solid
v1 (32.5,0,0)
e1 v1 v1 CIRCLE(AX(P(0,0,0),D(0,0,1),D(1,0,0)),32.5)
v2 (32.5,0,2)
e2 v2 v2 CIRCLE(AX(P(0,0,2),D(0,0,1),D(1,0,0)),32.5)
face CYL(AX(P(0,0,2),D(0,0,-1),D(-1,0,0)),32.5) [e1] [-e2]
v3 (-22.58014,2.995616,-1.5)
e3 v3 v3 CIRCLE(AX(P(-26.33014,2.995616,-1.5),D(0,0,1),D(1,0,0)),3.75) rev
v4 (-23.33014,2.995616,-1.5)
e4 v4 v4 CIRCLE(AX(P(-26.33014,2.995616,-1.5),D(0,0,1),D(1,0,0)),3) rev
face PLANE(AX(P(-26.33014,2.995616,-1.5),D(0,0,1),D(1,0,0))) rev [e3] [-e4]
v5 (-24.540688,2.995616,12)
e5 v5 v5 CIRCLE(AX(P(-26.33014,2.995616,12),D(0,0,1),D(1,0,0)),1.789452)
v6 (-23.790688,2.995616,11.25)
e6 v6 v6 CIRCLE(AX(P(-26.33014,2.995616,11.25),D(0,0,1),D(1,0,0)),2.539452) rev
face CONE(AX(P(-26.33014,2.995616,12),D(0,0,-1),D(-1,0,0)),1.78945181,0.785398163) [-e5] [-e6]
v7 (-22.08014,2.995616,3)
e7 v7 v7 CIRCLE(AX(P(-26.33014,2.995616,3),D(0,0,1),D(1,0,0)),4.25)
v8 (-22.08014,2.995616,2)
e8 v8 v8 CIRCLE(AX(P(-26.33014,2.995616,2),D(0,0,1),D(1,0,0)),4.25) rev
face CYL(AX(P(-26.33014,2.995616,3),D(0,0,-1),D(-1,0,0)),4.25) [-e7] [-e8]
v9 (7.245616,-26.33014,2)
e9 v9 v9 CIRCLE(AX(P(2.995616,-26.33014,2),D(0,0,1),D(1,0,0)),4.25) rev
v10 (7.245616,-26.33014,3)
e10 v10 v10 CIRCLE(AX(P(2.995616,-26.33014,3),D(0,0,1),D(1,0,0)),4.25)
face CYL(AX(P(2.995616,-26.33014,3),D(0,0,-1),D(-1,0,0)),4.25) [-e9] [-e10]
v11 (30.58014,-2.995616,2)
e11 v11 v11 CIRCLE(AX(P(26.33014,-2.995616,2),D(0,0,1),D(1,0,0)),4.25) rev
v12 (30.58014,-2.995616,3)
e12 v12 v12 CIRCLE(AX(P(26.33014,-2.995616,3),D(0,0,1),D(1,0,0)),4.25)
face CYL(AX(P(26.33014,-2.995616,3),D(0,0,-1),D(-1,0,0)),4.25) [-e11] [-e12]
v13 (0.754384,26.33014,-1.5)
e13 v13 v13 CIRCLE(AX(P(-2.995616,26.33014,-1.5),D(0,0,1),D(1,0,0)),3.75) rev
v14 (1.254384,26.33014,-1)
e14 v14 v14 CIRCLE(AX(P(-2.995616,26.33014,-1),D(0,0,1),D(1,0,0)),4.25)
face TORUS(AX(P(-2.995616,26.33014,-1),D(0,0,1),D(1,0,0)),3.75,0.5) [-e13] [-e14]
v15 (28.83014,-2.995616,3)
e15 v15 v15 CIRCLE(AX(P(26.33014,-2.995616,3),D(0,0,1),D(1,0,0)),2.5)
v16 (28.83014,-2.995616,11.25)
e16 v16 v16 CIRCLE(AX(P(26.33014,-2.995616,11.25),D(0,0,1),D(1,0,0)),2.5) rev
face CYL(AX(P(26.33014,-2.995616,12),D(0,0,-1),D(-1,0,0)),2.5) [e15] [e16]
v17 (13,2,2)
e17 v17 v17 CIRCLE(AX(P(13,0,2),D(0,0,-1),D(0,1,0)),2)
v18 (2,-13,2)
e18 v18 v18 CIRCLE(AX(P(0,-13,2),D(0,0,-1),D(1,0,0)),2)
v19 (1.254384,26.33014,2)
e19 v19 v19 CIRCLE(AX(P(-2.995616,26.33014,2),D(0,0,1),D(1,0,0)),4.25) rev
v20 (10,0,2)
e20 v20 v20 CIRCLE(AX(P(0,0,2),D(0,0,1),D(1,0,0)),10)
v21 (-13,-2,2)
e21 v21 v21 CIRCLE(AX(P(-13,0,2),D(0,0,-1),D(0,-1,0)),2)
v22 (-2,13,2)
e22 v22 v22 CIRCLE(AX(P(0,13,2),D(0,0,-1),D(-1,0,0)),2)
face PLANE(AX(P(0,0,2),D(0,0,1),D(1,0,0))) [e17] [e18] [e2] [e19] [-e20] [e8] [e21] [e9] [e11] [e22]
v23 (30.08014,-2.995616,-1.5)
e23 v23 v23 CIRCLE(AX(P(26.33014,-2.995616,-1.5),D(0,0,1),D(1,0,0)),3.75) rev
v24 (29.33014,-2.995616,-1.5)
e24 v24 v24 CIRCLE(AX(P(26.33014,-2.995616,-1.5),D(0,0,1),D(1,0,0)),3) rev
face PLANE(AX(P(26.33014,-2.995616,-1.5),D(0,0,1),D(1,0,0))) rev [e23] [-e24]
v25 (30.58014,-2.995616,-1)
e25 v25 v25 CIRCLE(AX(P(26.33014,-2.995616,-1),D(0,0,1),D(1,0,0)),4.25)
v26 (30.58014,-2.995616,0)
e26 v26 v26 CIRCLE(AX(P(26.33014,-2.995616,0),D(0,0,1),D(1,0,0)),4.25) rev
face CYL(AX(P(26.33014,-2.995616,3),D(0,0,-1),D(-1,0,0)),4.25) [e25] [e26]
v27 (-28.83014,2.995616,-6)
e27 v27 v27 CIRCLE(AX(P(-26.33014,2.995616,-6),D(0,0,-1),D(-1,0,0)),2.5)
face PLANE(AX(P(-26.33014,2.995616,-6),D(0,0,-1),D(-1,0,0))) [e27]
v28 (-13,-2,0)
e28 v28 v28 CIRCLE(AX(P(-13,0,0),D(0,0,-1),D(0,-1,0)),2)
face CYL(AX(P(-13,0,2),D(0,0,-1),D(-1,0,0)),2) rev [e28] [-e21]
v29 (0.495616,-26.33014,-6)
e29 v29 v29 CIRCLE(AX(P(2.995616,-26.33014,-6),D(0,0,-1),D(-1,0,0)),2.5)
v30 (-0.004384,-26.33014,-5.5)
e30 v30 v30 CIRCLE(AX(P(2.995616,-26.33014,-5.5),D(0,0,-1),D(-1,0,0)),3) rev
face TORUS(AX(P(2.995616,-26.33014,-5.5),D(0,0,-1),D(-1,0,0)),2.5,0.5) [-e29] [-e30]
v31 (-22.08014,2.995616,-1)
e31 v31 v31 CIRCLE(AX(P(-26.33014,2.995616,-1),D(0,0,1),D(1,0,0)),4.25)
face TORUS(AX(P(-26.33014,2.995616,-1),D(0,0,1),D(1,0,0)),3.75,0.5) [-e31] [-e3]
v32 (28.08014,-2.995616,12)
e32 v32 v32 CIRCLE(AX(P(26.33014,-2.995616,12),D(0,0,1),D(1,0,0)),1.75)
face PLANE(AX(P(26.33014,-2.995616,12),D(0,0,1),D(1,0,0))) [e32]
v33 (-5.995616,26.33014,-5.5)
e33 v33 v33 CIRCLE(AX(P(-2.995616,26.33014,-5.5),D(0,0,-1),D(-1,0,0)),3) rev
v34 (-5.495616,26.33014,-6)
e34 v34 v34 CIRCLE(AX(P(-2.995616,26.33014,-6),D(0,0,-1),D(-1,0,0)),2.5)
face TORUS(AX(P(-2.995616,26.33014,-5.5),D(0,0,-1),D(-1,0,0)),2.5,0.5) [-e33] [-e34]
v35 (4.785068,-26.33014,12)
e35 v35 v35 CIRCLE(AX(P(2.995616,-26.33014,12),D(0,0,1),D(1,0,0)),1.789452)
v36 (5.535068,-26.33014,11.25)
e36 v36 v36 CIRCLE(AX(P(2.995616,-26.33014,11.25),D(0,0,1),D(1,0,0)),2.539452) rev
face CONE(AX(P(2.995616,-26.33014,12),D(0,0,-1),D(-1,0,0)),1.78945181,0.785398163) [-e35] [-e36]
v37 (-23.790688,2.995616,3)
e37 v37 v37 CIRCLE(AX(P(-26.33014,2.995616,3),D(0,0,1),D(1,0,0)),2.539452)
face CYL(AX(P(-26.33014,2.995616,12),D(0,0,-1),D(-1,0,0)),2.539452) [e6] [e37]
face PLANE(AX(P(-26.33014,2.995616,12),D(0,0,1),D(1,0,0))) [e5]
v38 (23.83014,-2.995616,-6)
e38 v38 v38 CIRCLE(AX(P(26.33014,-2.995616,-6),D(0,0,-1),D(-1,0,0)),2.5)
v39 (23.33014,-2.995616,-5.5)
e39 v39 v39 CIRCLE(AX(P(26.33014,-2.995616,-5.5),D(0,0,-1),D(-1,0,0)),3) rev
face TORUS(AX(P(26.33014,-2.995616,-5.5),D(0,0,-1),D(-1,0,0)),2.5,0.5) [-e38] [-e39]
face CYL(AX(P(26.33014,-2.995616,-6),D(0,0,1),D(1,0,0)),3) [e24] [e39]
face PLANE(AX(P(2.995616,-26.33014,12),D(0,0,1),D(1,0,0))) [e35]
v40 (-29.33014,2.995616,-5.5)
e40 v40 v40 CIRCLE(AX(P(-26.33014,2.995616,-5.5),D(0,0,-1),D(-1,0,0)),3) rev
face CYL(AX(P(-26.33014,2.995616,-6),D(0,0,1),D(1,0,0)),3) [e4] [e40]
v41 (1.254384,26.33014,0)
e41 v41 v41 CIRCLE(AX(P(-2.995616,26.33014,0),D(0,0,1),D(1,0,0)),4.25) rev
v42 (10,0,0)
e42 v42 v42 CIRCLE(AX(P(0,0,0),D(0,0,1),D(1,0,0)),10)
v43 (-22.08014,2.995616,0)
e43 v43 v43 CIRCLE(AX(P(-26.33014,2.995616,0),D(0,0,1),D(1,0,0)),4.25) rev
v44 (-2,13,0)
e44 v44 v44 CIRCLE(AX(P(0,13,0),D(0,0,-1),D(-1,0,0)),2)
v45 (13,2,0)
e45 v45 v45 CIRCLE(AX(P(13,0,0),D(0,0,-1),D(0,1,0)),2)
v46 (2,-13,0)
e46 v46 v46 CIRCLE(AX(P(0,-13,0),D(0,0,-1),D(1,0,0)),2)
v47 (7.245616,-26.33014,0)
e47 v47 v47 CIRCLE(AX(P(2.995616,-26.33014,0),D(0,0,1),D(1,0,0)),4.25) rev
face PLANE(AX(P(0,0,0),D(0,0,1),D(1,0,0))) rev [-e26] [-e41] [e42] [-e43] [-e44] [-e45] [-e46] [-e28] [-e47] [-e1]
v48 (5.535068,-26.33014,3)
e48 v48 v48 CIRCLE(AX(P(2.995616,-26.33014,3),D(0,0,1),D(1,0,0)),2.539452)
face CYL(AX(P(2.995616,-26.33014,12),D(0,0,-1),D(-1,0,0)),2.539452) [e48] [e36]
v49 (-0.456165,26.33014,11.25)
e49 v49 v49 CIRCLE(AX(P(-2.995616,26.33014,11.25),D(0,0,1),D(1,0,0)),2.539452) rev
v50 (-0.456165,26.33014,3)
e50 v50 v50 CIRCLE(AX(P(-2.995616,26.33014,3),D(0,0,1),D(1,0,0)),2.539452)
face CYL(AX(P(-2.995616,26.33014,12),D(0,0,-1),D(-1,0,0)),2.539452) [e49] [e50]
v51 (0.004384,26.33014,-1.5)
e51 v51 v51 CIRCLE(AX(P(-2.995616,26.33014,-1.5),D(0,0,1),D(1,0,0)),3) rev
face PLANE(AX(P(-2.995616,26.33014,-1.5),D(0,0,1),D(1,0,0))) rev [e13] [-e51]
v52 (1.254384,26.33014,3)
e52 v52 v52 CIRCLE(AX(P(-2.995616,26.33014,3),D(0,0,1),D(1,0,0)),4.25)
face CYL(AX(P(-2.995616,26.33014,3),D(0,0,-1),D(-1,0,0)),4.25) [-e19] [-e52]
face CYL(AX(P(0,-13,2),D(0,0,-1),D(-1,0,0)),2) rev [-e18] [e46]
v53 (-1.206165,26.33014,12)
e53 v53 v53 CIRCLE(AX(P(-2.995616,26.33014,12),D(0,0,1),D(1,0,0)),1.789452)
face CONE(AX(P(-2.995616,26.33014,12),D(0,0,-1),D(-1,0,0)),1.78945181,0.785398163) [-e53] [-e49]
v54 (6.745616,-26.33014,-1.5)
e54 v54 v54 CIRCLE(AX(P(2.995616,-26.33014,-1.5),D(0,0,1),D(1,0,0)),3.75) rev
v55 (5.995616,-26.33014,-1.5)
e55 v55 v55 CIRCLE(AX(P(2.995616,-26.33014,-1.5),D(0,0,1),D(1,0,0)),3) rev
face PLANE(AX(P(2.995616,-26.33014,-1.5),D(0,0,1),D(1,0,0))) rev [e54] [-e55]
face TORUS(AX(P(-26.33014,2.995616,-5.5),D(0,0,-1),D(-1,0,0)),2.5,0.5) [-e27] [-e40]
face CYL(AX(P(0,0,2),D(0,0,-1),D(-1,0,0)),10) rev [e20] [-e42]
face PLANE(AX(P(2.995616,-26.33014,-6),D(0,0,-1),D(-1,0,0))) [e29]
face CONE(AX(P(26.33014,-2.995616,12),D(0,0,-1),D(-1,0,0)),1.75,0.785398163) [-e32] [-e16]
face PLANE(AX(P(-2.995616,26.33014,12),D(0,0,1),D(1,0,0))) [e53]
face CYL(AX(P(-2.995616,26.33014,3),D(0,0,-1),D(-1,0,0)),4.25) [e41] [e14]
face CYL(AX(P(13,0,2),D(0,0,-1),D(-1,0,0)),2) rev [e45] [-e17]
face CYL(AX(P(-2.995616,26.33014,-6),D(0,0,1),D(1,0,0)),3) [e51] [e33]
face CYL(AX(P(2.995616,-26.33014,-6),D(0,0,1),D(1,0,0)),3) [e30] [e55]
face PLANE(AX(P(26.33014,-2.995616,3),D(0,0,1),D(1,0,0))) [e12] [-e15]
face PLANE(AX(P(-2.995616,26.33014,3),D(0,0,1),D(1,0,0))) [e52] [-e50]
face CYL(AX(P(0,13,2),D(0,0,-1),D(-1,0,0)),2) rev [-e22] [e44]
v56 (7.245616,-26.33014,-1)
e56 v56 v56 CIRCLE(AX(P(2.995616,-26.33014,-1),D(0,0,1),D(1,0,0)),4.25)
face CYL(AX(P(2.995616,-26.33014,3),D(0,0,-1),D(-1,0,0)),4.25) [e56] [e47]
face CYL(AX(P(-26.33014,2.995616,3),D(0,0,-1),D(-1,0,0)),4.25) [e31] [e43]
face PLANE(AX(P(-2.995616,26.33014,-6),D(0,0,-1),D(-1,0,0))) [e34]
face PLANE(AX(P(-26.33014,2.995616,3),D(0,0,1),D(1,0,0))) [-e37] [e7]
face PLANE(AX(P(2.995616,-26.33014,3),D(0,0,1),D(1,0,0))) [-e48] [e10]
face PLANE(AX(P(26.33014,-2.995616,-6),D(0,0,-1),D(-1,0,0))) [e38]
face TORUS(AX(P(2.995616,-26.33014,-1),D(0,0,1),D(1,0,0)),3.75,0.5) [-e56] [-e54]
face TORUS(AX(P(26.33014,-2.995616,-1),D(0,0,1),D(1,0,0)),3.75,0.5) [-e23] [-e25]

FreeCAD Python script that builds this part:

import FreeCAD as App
import Part
import Sketcher


def edges_at(feature, points):
    """Names of the edges that pass closest to the given points."""
    edges = feature.Shape.Edges
    near = lambda p: min(range(len(edges)), key=lambda i: edges[i].distToShape(Part.Vertex(*p))[0])
    return sorted({f"Edge{near(p) + 1}" for p in points})

doc = App.newDocument("Part")
body = doc.addObject("PartDesign::Body", "Body")

sketch1 = doc.addObject("Sketcher::SketchObject", "Sketch")
body.addObject(sketch1)
sketch1.AttachmentSupport = (doc.XY_Plane, [""])
sketch1.MapMode = "FlatFace"
sketch1.addGeometry(Part.Circle(App.Vector(0, 0, 0), App.Vector(0, 0, 1), 32), False)
sketch1.addGeometry(Part.Circle(App.Vector(0, 0, 0), App.Vector(0, 0, 1), 10), False)
sketch1.addConstraint(Sketcher.Constraint("Coincident", 0, 3, -1, 1))
sketch1.addConstraint(Sketcher.Constraint("Coincident", 1, 3, -1, 1))
sketch1.addConstraint(Sketcher.Constraint("Diameter", 0, 65.0))
sketch1.addConstraint(Sketcher.Constraint("Diameter", 1, 20.0))
pad1 = doc.addObject("PartDesign::Pad", "Pad")
body.addObject(pad1)
pad1.Profile = sketch1
pad1.Length = 2

sketch2 = doc.addObject("Sketcher::SketchObject", "Sketch001")
body.addObject(sketch2)
sketch2.AttachmentSupport = (doc.XY_Plane, [""])
sketch2.MapMode = "FlatFace"
sketch2.addGeometry(Part.Circle(App.Vector(0, 13, 0), App.Vector(0, 0, 1), 2), False)
sketch2.addConstraint(Sketcher.Constraint("PointOnObject", 0, 3, -2))
sketch2.addConstraint(Sketcher.Constraint("Diameter", 0, 4.0))
sketch2.addConstraint(Sketcher.Constraint("DistanceY", -1, 1, 0, 3, 13.0))
pocket1 = doc.addObject("PartDesign::Pocket", "Pocket")
body.addObject(pocket1)
pocket1.Profile = sketch2
pocket1.Type = "ThroughAll"
pocket1.Reversed = True
doc.recompute()

polarpattern = doc.addObject("PartDesign::PolarPattern", "PolarPattern")
body.addObject(polarpattern)
polarpattern.Originals = [pocket1]
polarpattern.Axis = (doc.Z_Axis, [""])
polarpattern.Angle = 360
polarpattern.Occurrences = 4
body.Tip = polarpattern

sketch3 = doc.addObject("Sketcher::SketchObject", "Sketch002")
body.addObject(sketch3)
sketch3.AttachmentSupport = (doc.XY_Plane, [""])
sketch3.MapMode = "FlatFace"
sketch3.AttachmentOffset = App.Placement(App.Vector(0, 0, 2), App.Rotation())
sketch3.addGeometry(Part.Circle(App.Vector(-3, 26.3, 0), App.Vector(0, 0, 1), 4.2), False)
sketch3.addGeometry(Part.Circle(App.Vector(-26.3, 3, 0), App.Vector(0, 0, 1), 4.2), False)
sketch3.addGeometry(Part.Circle(App.Vector(3, -26.3, 0), App.Vector(0, 0, 1), 4.2), False)
sketch3.addGeometry(Part.Circle(App.Vector(26.3, -3, 0), App.Vector(0, 0, 1), 4.2), False)
sketch3.addConstraint(Sketcher.Constraint("Equal", 0, 1))
sketch3.addConstraint(Sketcher.Constraint("Equal", 1, 2))
sketch3.addConstraint(Sketcher.Constraint("Equal", 2, 3))
sketch3.addConstraint(Sketcher.Constraint("Symmetric", 0, 3, 2, 3, -1, 1))
sketch3.addConstraint(Sketcher.Constraint("Symmetric", 1, 3, 3, 3, -1, 1))
sketch3.addConstraint(Sketcher.Constraint("Diameter", 0, 8.5))
sketch3.addConstraint(Sketcher.Constraint("DistanceY", -1, 1, 0, 3, 26.33014))
sketch3.addConstraint(Sketcher.Constraint("DistanceX", 1, 3, -1, 1, 26.33014))
sketch3.addConstraint(Sketcher.Constraint("DistanceX", 0, 3, -1, 1, 2.995616))
sketch3.addConstraint(Sketcher.Constraint("DistanceY", -1, 1, 1, 3, 2.995616))
pad2 = doc.addObject("PartDesign::Pad", "Pad001")
body.addObject(pad2)
pad2.Profile = sketch3
pad2.Type = "TwoLengths"
pad2.Length = 1
pad2.Length2 = 3.5

sketch4 = doc.addObject("Sketcher::SketchObject", "Sketch003")
body.addObject(sketch4)
sketch4.AttachmentSupport = (doc.XY_Plane, [""])
sketch4.MapMode = "FlatFace"
sketch4.AttachmentOffset = App.Placement(App.Vector(0, 0, -1.5), App.Rotation())
sketch4.addGeometry(Part.Circle(App.Vector(-3, 26.3, 0), App.Vector(0, 0, 1), 3), False)
sketch4.addGeometry(Part.Circle(App.Vector(26.3, -3, 0), App.Vector(0, 0, 1), 3), False)
sketch4.addGeometry(Part.Circle(App.Vector(3, -26.3, 0), App.Vector(0, 0, 1), 3), False)
sketch4.addGeometry(Part.Circle(App.Vector(-26.3, 3, 0), App.Vector(0, 0, 1), 3), False)
sketch4.addConstraint(Sketcher.Constraint("Equal", 0, 1))
sketch4.addConstraint(Sketcher.Constraint("Equal", 1, 2))
sketch4.addConstraint(Sketcher.Constraint("Equal", 2, 3))
sketch4.addConstraint(Sketcher.Constraint("Symmetric", 0, 3, 2, 3, -1, 1))
sketch4.addConstraint(Sketcher.Constraint("Symmetric", 1, 3, 3, 3, -1, 1))
sketch4.addConstraint(Sketcher.Constraint("Diameter", 0, 6.0))
sketch4.addConstraint(Sketcher.Constraint("DistanceY", -1, 1, 0, 3, 26.33014))
sketch4.addConstraint(Sketcher.Constraint("DistanceX", -1, 1, 1, 3, 26.33014))
sketch4.addConstraint(Sketcher.Constraint("DistanceX", 0, 3, -1, 1, 2.995616))
sketch4.addConstraint(Sketcher.Constraint("DistanceY", 1, 3, -1, 1, 2.995616))
pad3 = doc.addObject("PartDesign::Pad", "Pad002")
body.addObject(pad3)
pad3.Profile = sketch4
pad3.Length = 4.5
pad3.Reversed = True
doc.recompute()

fillet = doc.addObject("PartDesign::Fillet", "Fillet")
body.addObject(fillet)
fillet.Base = (pad3, edges_at(pad3, [
    (-7.246, 26.33, -1.5),
    (-30.58, 2.996, -1.5),
    (-1.254, -26.33, -1.5),
    (22.08, -2.996, -1.5),
    (-5.996, 26.33, -6),
    (23.33, -2.996, -6),
    (-0.004, -26.33, -6),
    (-29.33, 2.996, -6),
]))
fillet.Radius = 0.5

sketch5 = doc.addObject("Sketcher::SketchObject", "Sketch004")
body.addObject(sketch5)
sketch5.AttachmentSupport = (doc.XY_Plane, [""])
sketch5.MapMode = "FlatFace"
sketch5.AttachmentOffset = App.Placement(App.Vector(0, 0, 3), App.Rotation())
sketch5.addGeometry(Part.Circle(App.Vector(-3, 26.3, 0), App.Vector(0, 0, 1), 2.5), False)
sketch5.addGeometry(Part.Circle(App.Vector(26.3, -3, 0), App.Vector(0, 0, 1), 2.5), False)
sketch5.addGeometry(Part.Circle(App.Vector(-26.3, 3, 0), App.Vector(0, 0, 1), 2.5), False)
sketch5.addGeometry(Part.Circle(App.Vector(3, -26.3, 0), App.Vector(0, 0, 1), 2.5), False)
sketch5.addConstraint(Sketcher.Constraint("Equal", 0, 2))
sketch5.addConstraint(Sketcher.Constraint("Equal", 2, 3))
sketch5.addConstraint(Sketcher.Constraint("Symmetric", 1, 3, 2, 3, -1, 1))
sketch5.addConstraint(Sketcher.Constraint("Symmetric", 0, 3, 3, 3, -1, 1))
sketch5.addConstraint(Sketcher.Constraint("Diameter", 1, 5.0))
sketch5.addConstraint(Sketcher.Constraint("Diameter", 0, 5.078904))
sketch5.addConstraint(Sketcher.Constraint("DistanceY", -1, 1, 0, 3, 26.33014))
sketch5.addConstraint(Sketcher.Constraint("DistanceX", -1, 1, 1, 3, 26.33014))
sketch5.addConstraint(Sketcher.Constraint("DistanceX", 0, 3, -1, 1, 2.995616))
sketch5.addConstraint(Sketcher.Constraint("DistanceY", 1, 3, -1, 1, 2.995616))
pad4 = doc.addObject("PartDesign::Pad", "Pad003")
body.addObject(pad4)
pad4.Profile = sketch5
pad4.Length = 9
doc.recompute()

chamfer = doc.addObject("PartDesign::Chamfer", "Chamfer")
body.addObject(chamfer)
chamfer.Base = (pad4, edges_at(pad4, [
    (-28.87, 2.996, 12),
    (0.456, -26.33, 12),
    (-5.535, 26.33, 12),
    (23.83, -2.996, 12),
]))
chamfer.Size = 0.75

doc.recompute()
